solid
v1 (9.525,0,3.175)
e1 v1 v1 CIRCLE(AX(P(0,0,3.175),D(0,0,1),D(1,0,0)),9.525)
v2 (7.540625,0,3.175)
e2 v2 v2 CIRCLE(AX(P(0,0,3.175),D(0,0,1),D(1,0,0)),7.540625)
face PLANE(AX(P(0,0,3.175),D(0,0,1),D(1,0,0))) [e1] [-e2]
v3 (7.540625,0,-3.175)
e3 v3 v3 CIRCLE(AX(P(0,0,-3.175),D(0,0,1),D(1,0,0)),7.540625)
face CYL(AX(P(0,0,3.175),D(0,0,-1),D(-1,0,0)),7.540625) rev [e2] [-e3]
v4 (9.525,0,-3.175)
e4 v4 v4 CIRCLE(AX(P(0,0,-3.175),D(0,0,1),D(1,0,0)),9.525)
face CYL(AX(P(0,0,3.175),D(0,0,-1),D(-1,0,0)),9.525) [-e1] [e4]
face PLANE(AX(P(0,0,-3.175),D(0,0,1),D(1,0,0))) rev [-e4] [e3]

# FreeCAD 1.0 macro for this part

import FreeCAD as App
import Part
import Sketcher
from FreeCAD import Vector
Q = App.Units.Quantity

doc = App.newDocument("Part")
params = doc.addObject("Spreadsheet::Sheet", "Params")
for row, (alias, value) in enumerate([
    ("sketch1_diameter", "0.75 in"),
    ("sketch1_diameter2", "0.59375 in"),
    ("pad1_length", "0.25 in"),
], start=1):
    params.set(f"A{row}", alias)
    params.set(f"B{row}", "=" + value)
    params.setAlias(f"B{row}", alias)

body = doc.addObject("PartDesign::Body", "Body")

# Sketch on XY plane
sketch1 = body.newObject("Sketcher::SketchObject", "Sketch")
sketch1.AttachmentSupport = (doc.getObject("XY_Plane"), [""])
sketch1.MapMode = "FlatFace"
sketch1.addGeometry([
    Part.Circle(Vector(0, 0, 0), Vector(0, 0, 1), 9.525),
    Part.Circle(Vector(0, 0, 0), Vector(0, 0, 1), 7.540625),
], False)
sketch1.addConstraint([
    Sketcher.Constraint("Coincident", 0, 3, -1, 1),
    Sketcher.Constraint("Coincident", 1, 3, -1, 1),
    Sketcher.Constraint("Diameter", 0, Q("0.75 in")),
    Sketcher.Constraint("Diameter", 1, Q("0.59375 in")),
])
sketch1.setExpression("Constraints[2]", "Params.sketch1_diameter")
sketch1.setExpression("Constraints[3]", "Params.sketch1_diameter2")
pad1 = body.newObject("PartDesign::Pad", "Pad")
pad1.Profile = sketch1
pad1.setExpression("Length", "Params.pad1_length")
pad1.Midplane = True

doc.recompute()
